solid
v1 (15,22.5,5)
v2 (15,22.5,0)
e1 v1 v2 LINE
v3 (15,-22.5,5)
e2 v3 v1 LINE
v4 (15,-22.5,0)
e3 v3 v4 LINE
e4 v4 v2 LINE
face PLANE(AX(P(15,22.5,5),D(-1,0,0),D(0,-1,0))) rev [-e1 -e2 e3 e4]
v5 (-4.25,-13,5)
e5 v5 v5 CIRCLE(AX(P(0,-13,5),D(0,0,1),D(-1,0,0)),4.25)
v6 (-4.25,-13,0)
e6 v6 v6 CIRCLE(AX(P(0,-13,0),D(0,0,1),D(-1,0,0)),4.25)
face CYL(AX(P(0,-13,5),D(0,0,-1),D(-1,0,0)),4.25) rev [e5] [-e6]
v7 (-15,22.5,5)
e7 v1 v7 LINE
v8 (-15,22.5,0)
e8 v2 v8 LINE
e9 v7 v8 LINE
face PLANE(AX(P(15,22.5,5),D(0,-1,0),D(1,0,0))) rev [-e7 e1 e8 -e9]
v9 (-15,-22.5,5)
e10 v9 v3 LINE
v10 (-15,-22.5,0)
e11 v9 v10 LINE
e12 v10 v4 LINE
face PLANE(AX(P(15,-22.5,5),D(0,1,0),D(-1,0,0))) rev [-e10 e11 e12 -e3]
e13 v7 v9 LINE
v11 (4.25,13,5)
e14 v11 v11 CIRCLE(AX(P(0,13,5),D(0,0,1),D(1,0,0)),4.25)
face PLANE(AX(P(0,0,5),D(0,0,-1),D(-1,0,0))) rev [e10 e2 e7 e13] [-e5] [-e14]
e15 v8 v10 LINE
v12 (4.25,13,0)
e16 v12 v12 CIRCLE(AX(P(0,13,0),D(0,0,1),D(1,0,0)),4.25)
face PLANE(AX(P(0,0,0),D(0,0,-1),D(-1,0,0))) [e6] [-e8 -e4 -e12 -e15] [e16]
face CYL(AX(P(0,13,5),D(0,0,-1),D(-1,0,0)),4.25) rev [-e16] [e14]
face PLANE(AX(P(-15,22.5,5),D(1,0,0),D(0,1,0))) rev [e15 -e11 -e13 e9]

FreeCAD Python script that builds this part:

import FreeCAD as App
import Part
import Sketcher

V = App.Vector

doc = App.newDocument("Part")
body = doc.addObject("PartDesign::Body", "Body")

# Sketch on XY plane
sketch1 = body.newObject("Sketcher::SketchObject", "Sketch")
sketch1.AttachmentSupport = (doc.getObject("XY_Plane"), [""])
sketch1.MapMode = "FlatFace"
sketch1.addGeometry([
    Part.LineSegment(V(-15, 22.5, 0), V(-15, -22.5, 0)),  # 0
    Part.LineSegment(V(-15, -22.5, 0), V(15, -22.5, 0)),  # 1
    Part.LineSegment(V(15, -22.5, 0), V(15, 22.5, 0)),  # 2
    Part.LineSegment(V(15, 22.5, 0), V(-15, 22.5, 0)),  # 3
    Part.Circle(V(0, -13, 0), V(0, 0, 1), 4.2),  # 4
    Part.Circle(V(0, 13, 0), V(0, 0, 1), 4.2),  # 5
], False)
sketch1.addConstraint([
    Sketcher.Constraint("Coincident", 0, 2, 1, 1),
    Sketcher.Constraint("Coincident", 1, 2, 2, 1),
    Sketcher.Constraint("Coincident", 2, 2, 3, 1),
    Sketcher.Constraint("Coincident", 3, 2, 0, 1),
    Sketcher.Constraint("Vertical", 0),
    Sketcher.Constraint("Horizontal", 1),
    Sketcher.Constraint("Vertical", 2),
    Sketcher.Constraint("Horizontal", 3),
    Sketcher.Constraint("Equal", 4, 5),
    Sketcher.Constraint("Symmetric", 4, 3, 5, 3, -1, 1),
    Sketcher.Constraint("Symmetric", 0, 2, 2, 2, -1, 1),
    Sketcher.Constraint("PointOnObject", 4, 3, -2),
    Sketcher.Constraint("Diameter", 4, 8.5),
    Sketcher.Constraint("DistanceX", 1, 1, 1, 2, 30.0),
    Sketcher.Constraint("DistanceY", 0, 2, 0, 1, 45.0),
    Sketcher.Constraint("DistanceY", 4, 3, -1, 1, 13.0),
])
pad1 = body.newObject("PartDesign::Pad", "Pad")
pad1.Profile = sketch1
pad1.Length = 5

doc.recompute()
